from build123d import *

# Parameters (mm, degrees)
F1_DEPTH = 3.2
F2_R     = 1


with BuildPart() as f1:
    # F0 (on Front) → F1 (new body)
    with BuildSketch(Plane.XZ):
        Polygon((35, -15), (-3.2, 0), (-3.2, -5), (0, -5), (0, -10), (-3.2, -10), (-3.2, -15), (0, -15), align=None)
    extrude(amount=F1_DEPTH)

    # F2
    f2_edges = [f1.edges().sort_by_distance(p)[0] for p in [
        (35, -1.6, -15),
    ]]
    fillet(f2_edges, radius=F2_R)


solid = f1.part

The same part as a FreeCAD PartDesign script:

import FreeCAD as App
import Part
import Sketcher

V = App.Vector


def edges_at(feature, points):
    """Names of the edges that pass closest to the given points."""
    edges = feature.Shape.Edges
    near = lambda p: min(range(len(edges)), key=lambda i: edges[i].distToShape(Part.Vertex(*p))[0])
    return sorted({f"Edge{near(p) + 1}" for p in points})


def add_polygon(sketch, points):
    """Adds a closed chain of lines whose ends are joined by coincident constraints."""
    first, n = sketch.GeometryCount, len(points)
    for a, b in zip(points, points[1:] + points[:1]):
        sketch.addGeometry(Part.LineSegment(App.Vector(*a, 0), App.Vector(*b, 0)), False)
    for i in range(n):
        sketch.addConstraint(Sketcher.Constraint("Coincident", first + i, 2, first + (i + 1) % n, 1))

doc = App.newDocument("Part")
body = doc.addObject("PartDesign::Body", "Body")

# Sketch on XZ plane
sketch1 = doc.addObject("Sketcher::SketchObject", "Sketch")
body.addObject(sketch1)
sketch1.AttachmentSupport = (doc.XZ_Plane, [""])
sketch1.MapMode = "FlatFace"
add_polygon(sketch1, [(35, -15), (-3.2, 0), (-3.2, -5), (0, -5), (0, -10), (-3.2, -10), (-3.2, -15)])  # lines 0-6
sketch1.addConstraint(Sketcher.Constraint("Vertical", 1))
sketch1.addConstraint(Sketcher.Constraint("Horizontal", 2))
sketch1.addConstraint(Sketcher.Constraint("Vertical", 3))
sketch1.addConstraint(Sketcher.Constraint("Horizontal", 4))
sketch1.addConstraint(Sketcher.Constraint("Vertical", 5))
sketch1.addConstraint(Sketcher.Constraint("Horizontal", 6))
sketch1.addConstraint(Sketcher.Constraint("PointOnObject", 0, 2, -1))
sketch1.addConstraint(Sketcher.Constraint("PointOnObject", 2, 2, -2))
sketch1.addConstraint(Sketcher.Constraint("Vertical", 1, 2, 4, 2))
sketch1.addConstraint(Sketcher.Constraint("Equal", 1, 3))
sketch1.addConstraint(Sketcher.Constraint("Equal", 3, 5))
sketch1.addConstraint(Sketcher.Constraint("DistanceY", 1, 2, 1, 1, 5.0))
sketch1.addConstraint(Sketcher.Constraint("DistanceX", 2, 1, 2, 2, 3.2))
sketch1.addConstraint(Sketcher.Constraint("DistanceX", 6, 1, 6, 2, 38.2))
pad1 = doc.addObject("PartDesign::Pad", "Pad")
body.addObject(pad1)
pad1.Profile = sketch1
pad1.Length = 3.2
doc.recompute()

fillet = doc.addObject("PartDesign::Fillet", "Fillet")
body.addObject(fillet)
fillet.Base = (pad1, edges_at(pad1, [(35, -1.6, -15)]))
fillet.Radius = 1

doc.recompute()
